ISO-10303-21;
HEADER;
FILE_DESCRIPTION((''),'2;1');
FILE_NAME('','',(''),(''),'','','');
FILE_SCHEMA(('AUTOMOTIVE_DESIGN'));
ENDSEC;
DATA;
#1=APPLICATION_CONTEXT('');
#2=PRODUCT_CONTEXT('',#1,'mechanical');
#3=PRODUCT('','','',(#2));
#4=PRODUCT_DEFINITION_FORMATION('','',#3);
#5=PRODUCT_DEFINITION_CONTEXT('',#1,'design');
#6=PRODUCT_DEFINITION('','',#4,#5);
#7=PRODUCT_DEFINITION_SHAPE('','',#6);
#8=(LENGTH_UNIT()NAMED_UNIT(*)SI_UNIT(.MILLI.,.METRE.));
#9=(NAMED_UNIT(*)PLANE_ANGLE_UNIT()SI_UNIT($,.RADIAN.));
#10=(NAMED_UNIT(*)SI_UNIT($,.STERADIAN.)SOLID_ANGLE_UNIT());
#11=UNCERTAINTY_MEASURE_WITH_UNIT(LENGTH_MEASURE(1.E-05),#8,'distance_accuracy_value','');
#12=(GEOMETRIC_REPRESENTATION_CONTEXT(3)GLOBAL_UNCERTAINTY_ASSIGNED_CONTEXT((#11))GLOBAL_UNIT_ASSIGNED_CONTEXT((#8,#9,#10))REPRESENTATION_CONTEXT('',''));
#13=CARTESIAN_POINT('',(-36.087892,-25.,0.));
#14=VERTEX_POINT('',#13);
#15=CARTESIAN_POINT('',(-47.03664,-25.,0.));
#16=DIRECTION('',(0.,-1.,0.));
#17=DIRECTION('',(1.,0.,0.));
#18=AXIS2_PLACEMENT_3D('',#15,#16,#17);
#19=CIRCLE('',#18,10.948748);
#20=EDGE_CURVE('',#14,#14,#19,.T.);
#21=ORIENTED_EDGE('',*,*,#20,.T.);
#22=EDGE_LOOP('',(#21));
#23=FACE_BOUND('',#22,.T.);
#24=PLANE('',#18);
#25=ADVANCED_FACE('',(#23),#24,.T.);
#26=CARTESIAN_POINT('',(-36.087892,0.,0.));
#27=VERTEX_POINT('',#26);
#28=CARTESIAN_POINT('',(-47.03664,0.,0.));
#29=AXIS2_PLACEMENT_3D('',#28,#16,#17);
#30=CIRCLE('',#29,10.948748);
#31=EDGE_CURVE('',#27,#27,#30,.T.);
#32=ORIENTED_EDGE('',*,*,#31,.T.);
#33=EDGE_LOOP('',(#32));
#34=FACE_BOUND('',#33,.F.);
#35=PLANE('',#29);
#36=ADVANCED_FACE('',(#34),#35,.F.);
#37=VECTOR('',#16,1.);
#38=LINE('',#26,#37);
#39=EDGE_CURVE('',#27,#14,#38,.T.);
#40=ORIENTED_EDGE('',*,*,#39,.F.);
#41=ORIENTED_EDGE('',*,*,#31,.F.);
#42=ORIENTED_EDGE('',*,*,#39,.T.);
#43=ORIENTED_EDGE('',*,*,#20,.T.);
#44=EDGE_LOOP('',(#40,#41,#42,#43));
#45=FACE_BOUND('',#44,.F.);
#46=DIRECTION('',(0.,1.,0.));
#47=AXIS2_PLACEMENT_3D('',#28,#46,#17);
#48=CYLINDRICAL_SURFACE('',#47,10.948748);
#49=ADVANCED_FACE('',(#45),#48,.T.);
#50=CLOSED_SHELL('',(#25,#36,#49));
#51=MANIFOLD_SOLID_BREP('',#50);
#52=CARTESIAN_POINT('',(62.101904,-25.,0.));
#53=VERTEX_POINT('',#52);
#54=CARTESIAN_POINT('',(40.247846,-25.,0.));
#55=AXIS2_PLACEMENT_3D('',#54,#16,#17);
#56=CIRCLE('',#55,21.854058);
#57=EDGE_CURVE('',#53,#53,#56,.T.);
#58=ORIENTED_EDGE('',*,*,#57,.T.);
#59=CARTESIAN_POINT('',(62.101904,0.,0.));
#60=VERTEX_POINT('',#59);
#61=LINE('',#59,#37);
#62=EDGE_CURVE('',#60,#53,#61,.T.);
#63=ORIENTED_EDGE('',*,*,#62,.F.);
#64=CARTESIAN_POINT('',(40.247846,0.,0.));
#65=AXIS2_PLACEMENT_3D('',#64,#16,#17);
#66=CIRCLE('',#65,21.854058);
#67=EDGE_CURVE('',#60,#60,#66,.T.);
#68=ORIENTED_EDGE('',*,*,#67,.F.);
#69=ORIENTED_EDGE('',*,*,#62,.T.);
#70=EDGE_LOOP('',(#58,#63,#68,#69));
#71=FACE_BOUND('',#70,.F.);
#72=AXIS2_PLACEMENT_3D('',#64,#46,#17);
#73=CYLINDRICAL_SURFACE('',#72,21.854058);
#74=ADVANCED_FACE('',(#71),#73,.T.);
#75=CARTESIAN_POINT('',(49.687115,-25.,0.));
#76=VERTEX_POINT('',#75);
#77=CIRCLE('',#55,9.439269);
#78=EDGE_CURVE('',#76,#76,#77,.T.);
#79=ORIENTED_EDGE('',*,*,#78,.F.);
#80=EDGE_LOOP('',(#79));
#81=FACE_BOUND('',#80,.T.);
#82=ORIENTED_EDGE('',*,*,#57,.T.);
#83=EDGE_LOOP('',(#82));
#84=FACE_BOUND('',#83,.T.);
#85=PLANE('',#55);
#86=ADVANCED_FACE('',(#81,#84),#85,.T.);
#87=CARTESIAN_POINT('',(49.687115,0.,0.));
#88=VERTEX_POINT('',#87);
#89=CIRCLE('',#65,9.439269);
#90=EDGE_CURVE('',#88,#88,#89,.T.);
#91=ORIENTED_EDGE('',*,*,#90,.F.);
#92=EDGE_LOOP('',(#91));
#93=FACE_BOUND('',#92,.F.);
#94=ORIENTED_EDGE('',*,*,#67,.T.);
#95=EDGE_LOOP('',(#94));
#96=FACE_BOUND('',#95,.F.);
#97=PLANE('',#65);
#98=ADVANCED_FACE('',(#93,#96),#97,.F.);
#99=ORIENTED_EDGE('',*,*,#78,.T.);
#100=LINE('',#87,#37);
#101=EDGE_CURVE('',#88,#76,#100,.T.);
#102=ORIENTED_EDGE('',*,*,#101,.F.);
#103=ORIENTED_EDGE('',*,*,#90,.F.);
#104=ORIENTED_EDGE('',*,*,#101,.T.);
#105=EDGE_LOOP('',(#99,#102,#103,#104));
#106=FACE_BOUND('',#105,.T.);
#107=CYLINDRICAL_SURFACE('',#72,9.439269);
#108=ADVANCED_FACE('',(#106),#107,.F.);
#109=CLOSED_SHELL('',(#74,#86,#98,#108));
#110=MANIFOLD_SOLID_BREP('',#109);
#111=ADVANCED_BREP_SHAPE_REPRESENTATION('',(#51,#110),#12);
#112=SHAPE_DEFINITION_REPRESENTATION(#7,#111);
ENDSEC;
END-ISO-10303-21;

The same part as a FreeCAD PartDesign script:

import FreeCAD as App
import Part
import Sketcher

doc = App.newDocument("Part")
body = doc.addObject("PartDesign::Body", "Body")
body.AllowCompound = True

# Sketch on XZ plane
sketch1 = body.newObject("Sketcher::SketchObject", "Sketch")
sketch1.AttachmentSupport = (doc.getObject("XZ_Plane"), [""])
sketch1.MapMode = "FlatFace"
sketch1.addGeometry([
    Part.Circle(App.Vector(40.247846, 0, 0), App.Vector(0, 0, 1), 21.854058),
    Part.Circle(App.Vector(40.247846, 0, 0), App.Vector(0, 0, 1), 9.439269),
    Part.Circle(App.Vector(-47.03664, 0, 0), App.Vector(0, 0, 1), 10.948748),
], False)
sketch1.addConstraint([
    Sketcher.Constraint("Coincident", 1, 3, 0, 3),
    Sketcher.Constraint("PointOnObject", 0, 3, -1),
    Sketcher.Constraint("PointOnObject", 2, 3, -1),
    Sketcher.Constraint("Diameter", 0, 43.708116),
    Sketcher.Constraint("Diameter", 1, 18.878538),
    Sketcher.Constraint("Diameter", 2, 21.897496),
    Sketcher.Constraint("DistanceX", 2, 3, -1, 1, 47.03664),
    Sketcher.Constraint("DistanceX", -1, 1, 0, 3, 40.247846),
])
pad1 = body.newObject("PartDesign::Pad", "Pad")
pad1.Profile = sketch1
pad1.Length = 25

doc.recompute()
